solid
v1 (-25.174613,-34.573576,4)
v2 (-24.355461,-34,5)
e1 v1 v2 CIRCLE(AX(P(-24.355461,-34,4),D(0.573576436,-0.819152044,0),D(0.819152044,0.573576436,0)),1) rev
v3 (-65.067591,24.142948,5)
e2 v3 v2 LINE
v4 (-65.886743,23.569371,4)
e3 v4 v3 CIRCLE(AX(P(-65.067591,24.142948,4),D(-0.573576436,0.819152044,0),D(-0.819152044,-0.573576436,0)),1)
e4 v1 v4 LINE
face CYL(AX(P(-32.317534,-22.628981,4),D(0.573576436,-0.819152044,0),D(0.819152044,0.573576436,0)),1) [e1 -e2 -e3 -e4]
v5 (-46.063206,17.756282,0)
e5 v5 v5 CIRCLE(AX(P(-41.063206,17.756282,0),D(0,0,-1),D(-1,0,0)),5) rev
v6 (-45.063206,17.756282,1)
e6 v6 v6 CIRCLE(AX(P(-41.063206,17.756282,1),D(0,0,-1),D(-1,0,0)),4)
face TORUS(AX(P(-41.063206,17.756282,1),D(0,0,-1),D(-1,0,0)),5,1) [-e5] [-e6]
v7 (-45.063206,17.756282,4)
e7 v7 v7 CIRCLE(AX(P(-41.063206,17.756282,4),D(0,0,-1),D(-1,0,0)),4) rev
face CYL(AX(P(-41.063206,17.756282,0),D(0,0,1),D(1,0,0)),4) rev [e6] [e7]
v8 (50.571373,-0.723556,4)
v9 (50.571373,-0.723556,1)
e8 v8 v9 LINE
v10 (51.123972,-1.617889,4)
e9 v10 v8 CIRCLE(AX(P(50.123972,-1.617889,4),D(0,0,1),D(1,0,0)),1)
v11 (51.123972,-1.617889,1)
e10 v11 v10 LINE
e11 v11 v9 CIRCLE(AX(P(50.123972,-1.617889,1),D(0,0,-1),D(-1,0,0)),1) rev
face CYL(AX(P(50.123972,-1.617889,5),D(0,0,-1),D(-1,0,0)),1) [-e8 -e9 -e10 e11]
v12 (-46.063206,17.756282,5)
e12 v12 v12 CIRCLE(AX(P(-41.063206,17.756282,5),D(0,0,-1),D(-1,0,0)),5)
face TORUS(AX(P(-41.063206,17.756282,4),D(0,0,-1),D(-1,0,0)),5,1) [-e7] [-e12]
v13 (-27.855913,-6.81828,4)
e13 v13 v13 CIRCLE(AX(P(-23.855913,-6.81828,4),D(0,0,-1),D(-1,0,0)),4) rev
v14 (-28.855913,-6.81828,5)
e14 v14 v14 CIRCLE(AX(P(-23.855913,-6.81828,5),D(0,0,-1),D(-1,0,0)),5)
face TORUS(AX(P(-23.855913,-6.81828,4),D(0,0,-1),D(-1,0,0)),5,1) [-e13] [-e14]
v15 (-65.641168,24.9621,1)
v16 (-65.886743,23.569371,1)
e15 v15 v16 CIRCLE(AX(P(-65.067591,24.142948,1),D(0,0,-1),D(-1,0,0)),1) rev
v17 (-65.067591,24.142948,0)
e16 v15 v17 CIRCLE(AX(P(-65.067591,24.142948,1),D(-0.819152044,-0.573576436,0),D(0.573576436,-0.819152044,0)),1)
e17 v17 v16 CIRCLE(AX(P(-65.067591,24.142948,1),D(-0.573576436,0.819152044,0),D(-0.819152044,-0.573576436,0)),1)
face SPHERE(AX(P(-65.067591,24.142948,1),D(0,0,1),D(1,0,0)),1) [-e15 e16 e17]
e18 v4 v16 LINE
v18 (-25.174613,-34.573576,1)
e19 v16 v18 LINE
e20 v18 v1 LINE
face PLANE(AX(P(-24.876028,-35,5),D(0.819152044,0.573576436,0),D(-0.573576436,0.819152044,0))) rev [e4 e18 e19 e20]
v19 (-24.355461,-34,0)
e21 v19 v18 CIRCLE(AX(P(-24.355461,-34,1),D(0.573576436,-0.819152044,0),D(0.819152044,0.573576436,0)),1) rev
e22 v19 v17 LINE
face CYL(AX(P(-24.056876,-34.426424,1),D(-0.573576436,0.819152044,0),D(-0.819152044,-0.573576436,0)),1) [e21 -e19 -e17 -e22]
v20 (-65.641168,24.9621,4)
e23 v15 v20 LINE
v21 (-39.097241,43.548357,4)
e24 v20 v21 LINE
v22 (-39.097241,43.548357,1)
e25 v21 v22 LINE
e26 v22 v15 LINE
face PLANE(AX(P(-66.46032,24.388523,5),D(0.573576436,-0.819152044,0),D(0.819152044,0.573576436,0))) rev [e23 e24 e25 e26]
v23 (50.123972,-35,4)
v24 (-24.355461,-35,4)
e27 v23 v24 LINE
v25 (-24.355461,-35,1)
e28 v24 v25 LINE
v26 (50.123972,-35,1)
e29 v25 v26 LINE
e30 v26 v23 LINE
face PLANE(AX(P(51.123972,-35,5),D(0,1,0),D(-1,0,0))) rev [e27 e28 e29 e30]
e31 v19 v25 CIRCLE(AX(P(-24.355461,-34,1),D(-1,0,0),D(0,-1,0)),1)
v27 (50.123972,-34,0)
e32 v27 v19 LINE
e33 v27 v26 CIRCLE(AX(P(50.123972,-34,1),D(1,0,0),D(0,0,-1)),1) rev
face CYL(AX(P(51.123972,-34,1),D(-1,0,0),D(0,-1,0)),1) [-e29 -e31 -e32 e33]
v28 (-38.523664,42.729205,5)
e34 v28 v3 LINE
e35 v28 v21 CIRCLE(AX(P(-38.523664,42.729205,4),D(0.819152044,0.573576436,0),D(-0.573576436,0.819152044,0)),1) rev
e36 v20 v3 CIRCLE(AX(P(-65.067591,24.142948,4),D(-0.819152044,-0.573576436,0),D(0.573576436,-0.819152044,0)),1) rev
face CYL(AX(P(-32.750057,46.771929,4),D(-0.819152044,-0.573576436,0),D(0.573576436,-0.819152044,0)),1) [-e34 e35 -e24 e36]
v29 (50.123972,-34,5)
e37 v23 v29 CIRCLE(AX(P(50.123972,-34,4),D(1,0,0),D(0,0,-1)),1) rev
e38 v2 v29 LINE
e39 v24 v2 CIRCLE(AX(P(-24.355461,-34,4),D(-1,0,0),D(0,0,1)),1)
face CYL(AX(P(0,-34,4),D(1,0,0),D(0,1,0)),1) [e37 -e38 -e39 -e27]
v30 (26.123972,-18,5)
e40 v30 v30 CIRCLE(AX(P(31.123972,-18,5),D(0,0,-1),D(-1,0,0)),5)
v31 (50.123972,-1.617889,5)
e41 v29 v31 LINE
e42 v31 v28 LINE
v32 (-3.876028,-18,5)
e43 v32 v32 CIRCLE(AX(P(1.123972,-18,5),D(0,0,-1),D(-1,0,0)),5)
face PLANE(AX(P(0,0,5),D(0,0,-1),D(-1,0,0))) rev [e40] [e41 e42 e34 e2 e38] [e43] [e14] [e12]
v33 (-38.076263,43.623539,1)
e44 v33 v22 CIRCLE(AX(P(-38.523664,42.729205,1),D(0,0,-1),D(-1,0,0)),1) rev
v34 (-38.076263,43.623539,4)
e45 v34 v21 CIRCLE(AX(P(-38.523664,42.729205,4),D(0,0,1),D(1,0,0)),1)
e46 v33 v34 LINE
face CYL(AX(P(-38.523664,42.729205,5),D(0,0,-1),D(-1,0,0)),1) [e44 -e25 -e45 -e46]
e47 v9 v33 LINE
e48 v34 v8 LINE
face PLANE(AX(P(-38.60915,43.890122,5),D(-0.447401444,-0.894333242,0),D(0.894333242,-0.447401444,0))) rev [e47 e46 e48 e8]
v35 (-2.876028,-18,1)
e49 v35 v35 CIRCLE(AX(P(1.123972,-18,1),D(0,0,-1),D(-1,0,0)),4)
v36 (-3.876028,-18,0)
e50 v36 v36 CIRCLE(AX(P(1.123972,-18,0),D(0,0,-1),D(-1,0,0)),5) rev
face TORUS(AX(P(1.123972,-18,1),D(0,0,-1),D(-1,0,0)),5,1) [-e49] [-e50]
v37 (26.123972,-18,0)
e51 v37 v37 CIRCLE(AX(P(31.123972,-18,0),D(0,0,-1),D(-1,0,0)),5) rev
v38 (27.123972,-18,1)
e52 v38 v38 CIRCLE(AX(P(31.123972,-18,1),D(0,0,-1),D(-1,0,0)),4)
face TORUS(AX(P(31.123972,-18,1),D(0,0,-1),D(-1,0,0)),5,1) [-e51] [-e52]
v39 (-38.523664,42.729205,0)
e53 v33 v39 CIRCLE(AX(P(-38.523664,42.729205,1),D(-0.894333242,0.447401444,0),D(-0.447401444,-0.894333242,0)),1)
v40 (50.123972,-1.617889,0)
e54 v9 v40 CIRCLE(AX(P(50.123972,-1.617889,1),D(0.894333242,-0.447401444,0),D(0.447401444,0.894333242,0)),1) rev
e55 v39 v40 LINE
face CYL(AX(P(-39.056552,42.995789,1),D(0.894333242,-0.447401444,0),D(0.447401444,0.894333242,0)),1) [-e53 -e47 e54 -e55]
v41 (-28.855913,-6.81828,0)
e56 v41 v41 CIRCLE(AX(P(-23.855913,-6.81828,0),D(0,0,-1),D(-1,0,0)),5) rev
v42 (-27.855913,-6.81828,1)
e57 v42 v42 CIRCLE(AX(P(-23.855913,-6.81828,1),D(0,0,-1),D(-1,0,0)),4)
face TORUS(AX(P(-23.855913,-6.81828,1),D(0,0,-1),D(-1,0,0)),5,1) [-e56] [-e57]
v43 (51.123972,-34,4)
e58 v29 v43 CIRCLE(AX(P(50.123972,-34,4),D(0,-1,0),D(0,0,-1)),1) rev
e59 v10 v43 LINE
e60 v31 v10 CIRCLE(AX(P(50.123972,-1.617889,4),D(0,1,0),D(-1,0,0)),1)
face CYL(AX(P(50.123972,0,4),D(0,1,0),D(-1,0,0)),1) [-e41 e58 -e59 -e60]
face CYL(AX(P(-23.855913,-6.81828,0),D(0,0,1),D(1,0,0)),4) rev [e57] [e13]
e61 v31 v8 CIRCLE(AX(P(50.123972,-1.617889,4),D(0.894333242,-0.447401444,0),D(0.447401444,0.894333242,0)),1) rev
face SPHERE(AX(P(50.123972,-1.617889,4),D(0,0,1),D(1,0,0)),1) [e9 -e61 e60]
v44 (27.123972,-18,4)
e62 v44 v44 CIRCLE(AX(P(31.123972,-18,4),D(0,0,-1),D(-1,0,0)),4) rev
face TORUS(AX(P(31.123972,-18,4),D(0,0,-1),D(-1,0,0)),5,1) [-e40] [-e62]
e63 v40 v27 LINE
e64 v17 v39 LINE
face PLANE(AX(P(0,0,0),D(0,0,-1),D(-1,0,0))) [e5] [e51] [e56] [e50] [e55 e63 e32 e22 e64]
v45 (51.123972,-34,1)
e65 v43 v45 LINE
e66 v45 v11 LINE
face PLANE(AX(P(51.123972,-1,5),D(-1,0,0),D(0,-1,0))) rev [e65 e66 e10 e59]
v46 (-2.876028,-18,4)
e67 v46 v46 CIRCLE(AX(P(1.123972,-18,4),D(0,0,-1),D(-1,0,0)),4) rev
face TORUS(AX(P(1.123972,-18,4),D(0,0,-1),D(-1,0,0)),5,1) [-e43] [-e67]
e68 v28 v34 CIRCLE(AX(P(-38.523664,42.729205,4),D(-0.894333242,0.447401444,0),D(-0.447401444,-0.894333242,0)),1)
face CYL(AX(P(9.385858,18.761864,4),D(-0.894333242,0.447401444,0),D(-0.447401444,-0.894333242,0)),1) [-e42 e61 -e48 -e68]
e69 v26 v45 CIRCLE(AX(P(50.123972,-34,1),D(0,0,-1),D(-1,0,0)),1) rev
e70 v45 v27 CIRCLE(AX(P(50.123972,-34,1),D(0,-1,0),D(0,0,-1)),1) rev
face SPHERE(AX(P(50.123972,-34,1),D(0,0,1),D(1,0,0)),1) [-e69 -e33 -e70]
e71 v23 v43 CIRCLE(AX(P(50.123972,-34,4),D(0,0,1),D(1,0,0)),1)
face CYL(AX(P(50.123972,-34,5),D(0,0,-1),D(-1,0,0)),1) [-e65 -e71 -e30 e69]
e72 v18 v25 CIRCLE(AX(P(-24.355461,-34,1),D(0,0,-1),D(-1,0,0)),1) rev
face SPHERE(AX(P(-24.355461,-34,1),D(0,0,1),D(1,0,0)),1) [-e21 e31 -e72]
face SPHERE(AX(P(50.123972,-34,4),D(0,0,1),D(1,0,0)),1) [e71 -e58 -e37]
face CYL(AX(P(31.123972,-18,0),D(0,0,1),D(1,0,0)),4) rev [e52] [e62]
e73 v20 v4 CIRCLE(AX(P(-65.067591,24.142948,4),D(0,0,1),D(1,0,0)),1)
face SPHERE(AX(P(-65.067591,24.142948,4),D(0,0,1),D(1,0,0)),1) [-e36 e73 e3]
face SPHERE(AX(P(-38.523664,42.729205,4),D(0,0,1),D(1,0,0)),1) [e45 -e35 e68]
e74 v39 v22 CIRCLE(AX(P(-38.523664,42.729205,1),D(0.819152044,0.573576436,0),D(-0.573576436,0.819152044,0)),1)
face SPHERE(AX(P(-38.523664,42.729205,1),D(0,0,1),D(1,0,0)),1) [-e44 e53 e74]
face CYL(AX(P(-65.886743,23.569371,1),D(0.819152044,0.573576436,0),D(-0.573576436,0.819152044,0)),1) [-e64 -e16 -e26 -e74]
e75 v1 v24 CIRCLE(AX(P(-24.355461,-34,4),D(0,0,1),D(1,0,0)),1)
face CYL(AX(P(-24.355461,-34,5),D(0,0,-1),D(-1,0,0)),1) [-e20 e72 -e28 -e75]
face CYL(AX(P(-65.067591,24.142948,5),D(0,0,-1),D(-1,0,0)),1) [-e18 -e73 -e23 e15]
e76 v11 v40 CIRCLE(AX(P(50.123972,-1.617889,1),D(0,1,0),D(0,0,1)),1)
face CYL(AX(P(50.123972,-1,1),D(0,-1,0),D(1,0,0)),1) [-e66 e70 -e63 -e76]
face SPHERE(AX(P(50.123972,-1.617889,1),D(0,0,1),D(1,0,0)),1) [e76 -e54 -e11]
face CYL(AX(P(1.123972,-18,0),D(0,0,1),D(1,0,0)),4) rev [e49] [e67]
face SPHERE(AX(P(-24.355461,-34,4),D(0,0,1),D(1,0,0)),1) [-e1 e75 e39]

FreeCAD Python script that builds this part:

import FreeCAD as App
import Part
import Sketcher
from FreeCAD import Vector
Q = App.Units.Quantity


def add_polygon(sketch, points):
    """Adds a closed chain of lines whose ends are joined by coincident constraints."""
    first, n = sketch.GeometryCount, len(points)
    for a, b in zip(points, points[1:] + points[:1]):
        sketch.addGeometry(Part.LineSegment(App.Vector(*a, 0), App.Vector(*b, 0)), False)
    for i in range(n):
        sketch.addConstraint(Sketcher.Constraint("Coincident", first + i, 2, first + (i + 1) % n, 1))

doc = App.newDocument("Part")
params = doc.addObject("Spreadsheet::Sheet", "Params")
for row, (alias, value) in enumerate([
    ("sketch1_width", "76 mm"),
    ("sketch1_height", "34 mm"),
    ("sketch1_length", "34 mm"),
    ("sketch1_length2", "72.5 mm"),
    ("pad1_length", "5 mm"),
    ("sketch2_diameter", "8 mm"),
    ("fillet_radius", "1 mm"),
], start=1):
    params.set(f"A{row}", alias)
    params.set(f"B{row}", "=" + value)
    params.setAlias(f"B{row}", alias)

body = doc.addObject("PartDesign::Body", "Body")

# Sketch on XY plane
sketch1 = body.newObject("Sketcher::SketchObject", "Sketch")
sketch1.AttachmentSupport = (doc.getObject("XY_Plane"), [""])
sketch1.MapMode = "FlatFace"
add_polygon(sketch1, [(-39, 44), (-66, 24), (-25, -35), (51, -35), (51, -1)])  # lines 0-4
sketch1.addConstraint(Sketcher.Constraint("Horizontal", 2))
sketch1.addConstraint(Sketcher.Constraint("Vertical", 3))
sketch1.addConstraint(Sketcher.Constraint("Perpendicular", 0, 1))
sketch1.addConstraint(Sketcher.Constraint("DistanceX", 2, 1, 2, 2, Q("76 mm")))
sketch1.addConstraint(Sketcher.Constraint("DistanceY", 3, 1, 3, 2, Q("34 mm")))
sketch1.addConstraint(Sketcher.Constraint("Angle", 0, Q("-145 deg")))
sketch1.addConstraint(Sketcher.Constraint("Distance", 0, Q("34 mm")))
sketch1.addConstraint(Sketcher.Constraint("DistanceY", 1, 2, -1, 1, Q("35 mm")))
sketch1.addConstraint(Sketcher.Constraint("Distance", 1, Q("72.5 mm")))
sketch1.addConstraint(Sketcher.Constraint("DistanceX", 0, 2, -1, 1, Q("66.46032 mm")))
sketch1.setExpression("Constraints[8]", "Params.sketch1_width")
sketch1.setExpression("Constraints[9]", "Params.sketch1_height")
sketch1.setExpression("Constraints[11]", "Params.sketch1_length")
sketch1.setExpression("Constraints[13]", "Params.sketch1_length2")
pad1 = body.newObject("PartDesign::Pad", "Pad")
pad1.Profile = sketch1
pad1.setExpression("Length", "Params.pad1_length")

# Sketch on XY plane
sketch2 = body.newObject("Sketcher::SketchObject", "Sketch001")
sketch2.AttachmentSupport = (doc.getObject("XY_Plane"), [""])
sketch2.MapMode = "FlatFace"
sketch2.AttachmentOffset = App.Placement(Vector(0, 0, 5), App.Rotation())
sketch2.addGeometry(Part.Circle(Vector(31.1, -18, 0), Vector(0, 0, 1), 4), False)
sketch2.addGeometry(Part.Circle(Vector(1.1, -18, 0), Vector(0, 0, 1), 4), False)
sketch2.addGeometry(Part.Circle(Vector(-41.1, 17.8, 0), Vector(0, 0, 1), 4), False)
sketch2.addGeometry(Part.Circle(Vector(-23.9, -6.8, 0), Vector(0, 0, 1), 4), False)
sketch2.addConstraint(Sketcher.Constraint("Equal", 0, 1))
sketch2.addConstraint(Sketcher.Constraint("Equal", 1, 2))
sketch2.addConstraint(Sketcher.Constraint("Equal", 2, 3))
sketch2.addConstraint(Sketcher.Constraint("Horizontal", 0, 3, 1, 3))
sketch2.addConstraint(Sketcher.Constraint("Diameter", 0, Q("8 mm")))
sketch2.addConstraint(Sketcher.Constraint("DistanceY", 0, 3, -1, 1, Q("18 mm")))
sketch2.addConstraint(Sketcher.Constraint("DistanceX", 1, 3, 0, 3, Q("30 mm")))
sketch2.addConstraint(Sketcher.Constraint("DistanceX", -1, 1, 0, 3, Q("31.123972 mm")))
sketch2.addConstraint(Sketcher.Constraint("DistanceY", -1, 1, 2, 3, Q("17.756282 mm")))
sketch2.addConstraint(Sketcher.Constraint("DistanceY", 3, 3, -1, 1, Q("6.81828 mm")))
sketch2.addConstraint(Sketcher.Constraint("DistanceX", 2, 3, 1, 3, Q("42.187178 mm")))
sketch2.addConstraint(Sketcher.Constraint("DistanceX", 3, 3, -1, 1, Q("23.855913 mm")))
sketch2.setExpression("Constraints[4]", "Params.sketch2_diameter")
pocket1 = body.newObject("PartDesign::Pocket", "Pocket")
pocket1.Profile = sketch2
pocket1.Type = "ThroughAll"
doc.recompute()

fillet = body.newObject("PartDesign::Fillet", "Fillet")
fillet.Base = (pocket1, ["Edge1"])
fillet.UseAllEdges = True
fillet.setExpression("Radius", "Params.fillet_radius")

doc.recompute()
